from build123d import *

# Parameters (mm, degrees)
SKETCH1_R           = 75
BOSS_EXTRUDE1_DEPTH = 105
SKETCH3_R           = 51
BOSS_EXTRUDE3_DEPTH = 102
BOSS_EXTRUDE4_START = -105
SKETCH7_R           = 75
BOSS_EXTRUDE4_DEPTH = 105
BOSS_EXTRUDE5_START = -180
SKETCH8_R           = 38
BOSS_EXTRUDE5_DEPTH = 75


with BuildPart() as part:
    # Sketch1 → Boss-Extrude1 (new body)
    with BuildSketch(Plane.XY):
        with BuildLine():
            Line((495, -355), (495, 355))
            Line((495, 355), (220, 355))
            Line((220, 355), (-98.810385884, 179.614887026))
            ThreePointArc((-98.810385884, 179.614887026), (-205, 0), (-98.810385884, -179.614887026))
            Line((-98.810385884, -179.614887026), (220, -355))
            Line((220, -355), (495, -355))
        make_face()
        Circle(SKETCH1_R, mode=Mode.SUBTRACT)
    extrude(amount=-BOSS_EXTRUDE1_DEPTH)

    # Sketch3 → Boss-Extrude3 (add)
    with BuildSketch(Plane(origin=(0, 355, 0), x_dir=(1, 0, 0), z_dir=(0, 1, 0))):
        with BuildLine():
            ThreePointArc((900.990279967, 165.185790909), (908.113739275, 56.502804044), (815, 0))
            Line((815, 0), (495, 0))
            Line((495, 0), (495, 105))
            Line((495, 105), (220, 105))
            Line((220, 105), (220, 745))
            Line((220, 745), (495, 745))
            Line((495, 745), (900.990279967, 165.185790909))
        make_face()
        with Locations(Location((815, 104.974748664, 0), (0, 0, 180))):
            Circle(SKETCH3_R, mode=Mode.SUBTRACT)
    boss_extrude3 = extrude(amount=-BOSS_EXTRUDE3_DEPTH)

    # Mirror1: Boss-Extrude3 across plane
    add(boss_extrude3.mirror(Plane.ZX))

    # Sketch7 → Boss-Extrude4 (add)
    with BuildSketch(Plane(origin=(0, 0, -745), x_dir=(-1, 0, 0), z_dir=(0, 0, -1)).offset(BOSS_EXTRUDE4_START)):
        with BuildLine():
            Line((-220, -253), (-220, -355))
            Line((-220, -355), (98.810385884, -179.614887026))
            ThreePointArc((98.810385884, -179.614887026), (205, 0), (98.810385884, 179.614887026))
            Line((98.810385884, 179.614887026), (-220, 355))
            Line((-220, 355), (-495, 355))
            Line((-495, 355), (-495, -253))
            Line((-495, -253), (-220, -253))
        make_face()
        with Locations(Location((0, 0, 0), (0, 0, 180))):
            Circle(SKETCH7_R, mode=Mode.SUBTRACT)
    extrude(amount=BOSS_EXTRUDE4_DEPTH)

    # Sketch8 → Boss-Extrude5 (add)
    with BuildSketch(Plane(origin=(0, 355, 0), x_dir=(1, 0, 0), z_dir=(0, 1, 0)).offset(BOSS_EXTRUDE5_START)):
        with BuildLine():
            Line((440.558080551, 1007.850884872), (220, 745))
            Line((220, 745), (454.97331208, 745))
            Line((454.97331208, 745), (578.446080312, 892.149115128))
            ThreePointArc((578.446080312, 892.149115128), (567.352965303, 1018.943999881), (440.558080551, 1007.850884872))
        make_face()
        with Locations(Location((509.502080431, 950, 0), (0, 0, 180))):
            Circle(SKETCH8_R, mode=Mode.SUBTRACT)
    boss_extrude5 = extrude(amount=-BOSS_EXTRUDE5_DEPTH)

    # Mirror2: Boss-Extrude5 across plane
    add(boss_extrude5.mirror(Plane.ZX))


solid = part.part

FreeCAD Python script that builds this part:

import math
import FreeCAD as App
import Part
import Sketcher

V = App.Vector
Q = App.Units.Quantity

doc = App.newDocument("Part")
body = doc.addObject("PartDesign::Body", "Body")

# Sketch on XY plane
sketch1 = body.newObject("Sketcher::SketchObject", "Sketch")
sketch1.AttachmentSupport = (doc.getObject("XY_Plane"), [""])
sketch1.MapMode = "FlatFace"
sketch1.addGeometry([
    Part.LineSegment(V(495, -355, 0), V(495, 355, 0)),  # 0
    Part.LineSegment(V(495, 355, 0), V(220, 355, 0)),  # 1
    Part.LineSegment(V(220, 355, 0), V(-99, 180, 0)),  # 2
    Part.ArcOfCircle(Part.Circle(V(0, 0, 0), V(0, 0, 1), 205), math.radians(119), math.radians(241)),  # 3
    Part.LineSegment(V(-99, -180, 0), V(220, -355, 0)),  # 4
    Part.LineSegment(V(220, -355, 0), V(495, -355, 0)),  # 5
    Part.Circle(V(0, 0, 0), V(0, 0, 1), 75),  # 6
], False)
sketch1.addConstraint([
    Sketcher.Constraint("Coincident", 0, 2, 1, 1),
    Sketcher.Constraint("Coincident", 1, 2, 2, 1),
    Sketcher.Constraint("Tangent", 2, 2, 3, 1),
    Sketcher.Constraint("Tangent", 3, 2, 4, 1),
    Sketcher.Constraint("Coincident", 4, 2, 5, 1),
    Sketcher.Constraint("Coincident", 5, 2, 0, 1),
    Sketcher.Constraint("Vertical", 0),
    Sketcher.Constraint("Horizontal", 1),
    Sketcher.Constraint("Horizontal", 5),
    Sketcher.Constraint("Coincident", 3, 3, -1, 1),
    Sketcher.Constraint("Coincident", 6, 3, -1, 1),
    Sketcher.Constraint("Symmetric", 1, 2, 4, 2, -1),
    Sketcher.Constraint("Diameter", 6, 150.0),
    Sketcher.Constraint("Radius", 3, 205.0),
    Sketcher.Constraint("DistanceX", 1, 2, 1, 1, 275.0),
    Sketcher.Constraint("DistanceY", 0, 1, 0, 2, 710.0),
    Sketcher.Constraint("DistanceX", -1, 1, 0, 2, 495.0),
])
pad1 = body.newObject("PartDesign::Pad", "Pad")
pad1.Profile = sketch1
pad1.Length = 105
pad1.Reversed = True

# Sketch on XZ plane
sketch2 = body.newObject("Sketcher::SketchObject", "Sketch001")
sketch2.AttachmentSupport = (doc.getObject("XZ_Plane"), [""])
sketch2.MapMode = "FlatFace"
sketch2.AttachmentOffset = App.Placement(V(0, 0, -355), App.Rotation())
sketch2.addGeometry([
    Part.ArcOfCircle(Part.Circle(V(815, -105, 0), V(0, 0, 1), 105), math.radians(-35), math.radians(90)),  # 0
    Part.LineSegment(V(901, -165, 0), V(495, -745, 0)),  # 1
    Part.LineSegment(V(495, -745, 0), V(220, -745, 0)),  # 2
    Part.LineSegment(V(220, -745, 0), V(220, -105, 0)),  # 3
    Part.LineSegment(V(220, -105, 0), V(495, -105, 0)),  # 4
    Part.LineSegment(V(495, -105, 0), V(495, 0, 0)),  # 5
    Part.LineSegment(V(495, 0, 0), V(815, 0, 0)),  # 6
    Part.Circle(V(815, -105, 0), V(0, 0, 1), 51),  # 7
], False)
sketch2.addConstraint([
    Sketcher.Constraint("Tangent", 0, 1, 1, 1),
    Sketcher.Constraint("Coincident", 1, 2, 2, 1),
    Sketcher.Constraint("Coincident", 2, 2, 3, 1),
    Sketcher.Constraint("Coincident", 3, 2, 4, 1),
    Sketcher.Constraint("Coincident", 4, 2, 5, 1),
    Sketcher.Constraint("Coincident", 5, 2, 6, 1),
    Sketcher.Constraint("Tangent", 6, 2, 0, 2),
    Sketcher.Constraint("Horizontal", 2),
    Sketcher.Constraint("Vertical", 3),
    Sketcher.Constraint("Horizontal", 4),
    Sketcher.Constraint("Vertical", 5),
    Sketcher.Constraint("Horizontal", 6),
    Sketcher.Constraint("Coincident", 7, 3, 0, 3),
    Sketcher.Constraint("PointOnObject", 5, 2, -1),
    Sketcher.Constraint("Vertical", 1, 2, 4, 2),
    Sketcher.Constraint("Diameter", 7, 102.0),
    Sketcher.Constraint("DistanceX", 2, 2, 2, 1, 275.0),
    Sketcher.Constraint("DistanceX", 6, 1, 6, 2, 320.0),
    Sketcher.Constraint("DistanceY", 3, 1, 3, 2, 640.0),
    Sketcher.Constraint("DistanceY", 5, 1, 5, 2, 105.0),
    Sketcher.Constraint("Angle", 1, Q("-125 deg")),
    Sketcher.Constraint("DistanceX", -1, 1, 0, 3, 815.0),
])
pad2 = body.newObject("PartDesign::Pad", "Pad001")
pad2.Profile = sketch2
pad2.Length = 102
doc.recompute()

mirrored = body.newObject("PartDesign::Mirrored", "Mirrored")
mirrored.Originals = [pad2]
mirrored.MirrorPlane = (doc.getObject("XZ_Plane"), [""])
body.Tip = mirrored

# Sketch on XY plane
sketch3 = body.newObject("Sketcher::SketchObject", "Sketch002")
sketch3.AttachmentSupport = (doc.getObject("XY_Plane"), [""])
sketch3.MapMode = "FlatFace"
sketch3.AttachmentOffset = App.Placement(V(0, 0, -640), App.Rotation())
sketch3.addGeometry([
    Part.LineSegment(V(220, -253, 0), V(220, -355, 0)),  # 0
    Part.LineSegment(V(220, -355, 0), V(-99, -180, 0)),  # 1
    Part.ArcOfCircle(Part.Circle(V(0, 0, 0), V(0, 0, 1), 205), math.radians(119), math.radians(241)),  # 2
    Part.LineSegment(V(-99, 180, 0), V(220, 355, 0)),  # 3
    Part.LineSegment(V(220, 355, 0), V(495, 355, 0)),  # 4
    Part.LineSegment(V(495, 355, 0), V(495, -253, 0)),  # 5
    Part.LineSegment(V(495, -253, 0), V(220, -253, 0)),  # 6
    Part.Circle(V(0, 0, 0), V(0, 0, 1), 75),  # 7
], False)
sketch3.addConstraint([
    Sketcher.Constraint("Coincident", 0, 2, 1, 1),
    Sketcher.Constraint("Tangent", 1, 2, 2, 2),
    Sketcher.Constraint("Tangent", 2, 1, 3, 1),
    Sketcher.Constraint("Coincident", 3, 2, 4, 1),
    Sketcher.Constraint("Coincident", 4, 2, 5, 1),
    Sketcher.Constraint("Coincident", 5, 2, 6, 1),
    Sketcher.Constraint("Coincident", 6, 2, 0, 1),
    Sketcher.Constraint("Vertical", 0),
    Sketcher.Constraint("Horizontal", 4),
    Sketcher.Constraint("Vertical", 5),
    Sketcher.Constraint("Horizontal", 6),
    Sketcher.Constraint("Coincident", 2, 3, -1, 1),
    Sketcher.Constraint("Coincident", 7, 3, -1, 1),
    Sketcher.Constraint("Symmetric", 0, 2, 3, 2, -1),
    Sketcher.Constraint("Diameter", 7, 150.0),
    Sketcher.Constraint("Radius", 2, 205.0),
    Sketcher.Constraint("DistanceX", 4, 1, 4, 2, 275.0),
    Sketcher.Constraint("DistanceY", 0, 2, 0, 1, 102.0),
    Sketcher.Constraint("DistanceY", 5, 2, 5, 1, 608.0),
    Sketcher.Constraint("DistanceX", -1, 1, 0, 2, 220.0),
])
pad3 = body.newObject("PartDesign::Pad", "Pad002")
pad3.Profile = sketch3
pad3.Length = 105
pad3.Reversed = True

# Sketch on XZ plane
sketch4 = body.newObject("Sketcher::SketchObject", "Sketch003")
sketch4.AttachmentSupport = (doc.getObject("XZ_Plane"), [""])
sketch4.MapMode = "FlatFace"
sketch4.AttachmentOffset = App.Placement(V(0, 0, -175), App.Rotation())
sketch4.addGeometry([
    Part.LineSegment(V(441, -1008, 0), V(220, -745, 0)),  # 0
    Part.LineSegment(V(220, -745, 0), V(455, -745, 0)),  # 1
    Part.LineSegment(V(455, -745, 0), V(578, -892, 0)),  # 2
    Part.ArcOfCircle(Part.Circle(V(510, -950, 0), V(0, 0, 1), 90), math.radians(-140), math.radians(40)),  # 3
    Part.Circle(V(510, -950, 0), V(0, 0, 1), 38),  # 4
], False)
sketch4.addConstraint([
    Sketcher.Constraint("Coincident", 0, 2, 1, 1),
    Sketcher.Constraint("Coincident", 1, 2, 2, 1),
    Sketcher.Constraint("Tangent", 2, 2, 3, 2),
    Sketcher.Constraint("Tangent", 3, 1, 0, 1),
    Sketcher.Constraint("Horizontal", 1),
    Sketcher.Constraint("Coincident", 4, 3, 3, 3),
    Sketcher.Constraint("Parallel", 0, 2),
    Sketcher.Constraint("Diameter", 4, 76.0),
    Sketcher.Constraint("Radius", 3, 90.0),
    Sketcher.Constraint("Angle", 0, Q("130 deg")),
    Sketcher.Constraint("DistanceY", 3, 3, -1, 1, 950.0),
    Sketcher.Constraint("DistanceX", -1, 1, 0, 2, 220.0),
    Sketcher.Constraint("DistanceY", 0, 2, -1, 1, 745.0),
])
pad4 = body.newObject("PartDesign::Pad", "Pad003")
pad4.Profile = sketch4
pad4.Length = 75
doc.recompute()

mirrored2 = body.newObject("PartDesign::Mirrored", "Mirrored001")
mirrored2.Originals = [pad4]
mirrored2.MirrorPlane = (doc.getObject("XZ_Plane"), [""])
body.Tip = mirrored2

doc.recompute()
